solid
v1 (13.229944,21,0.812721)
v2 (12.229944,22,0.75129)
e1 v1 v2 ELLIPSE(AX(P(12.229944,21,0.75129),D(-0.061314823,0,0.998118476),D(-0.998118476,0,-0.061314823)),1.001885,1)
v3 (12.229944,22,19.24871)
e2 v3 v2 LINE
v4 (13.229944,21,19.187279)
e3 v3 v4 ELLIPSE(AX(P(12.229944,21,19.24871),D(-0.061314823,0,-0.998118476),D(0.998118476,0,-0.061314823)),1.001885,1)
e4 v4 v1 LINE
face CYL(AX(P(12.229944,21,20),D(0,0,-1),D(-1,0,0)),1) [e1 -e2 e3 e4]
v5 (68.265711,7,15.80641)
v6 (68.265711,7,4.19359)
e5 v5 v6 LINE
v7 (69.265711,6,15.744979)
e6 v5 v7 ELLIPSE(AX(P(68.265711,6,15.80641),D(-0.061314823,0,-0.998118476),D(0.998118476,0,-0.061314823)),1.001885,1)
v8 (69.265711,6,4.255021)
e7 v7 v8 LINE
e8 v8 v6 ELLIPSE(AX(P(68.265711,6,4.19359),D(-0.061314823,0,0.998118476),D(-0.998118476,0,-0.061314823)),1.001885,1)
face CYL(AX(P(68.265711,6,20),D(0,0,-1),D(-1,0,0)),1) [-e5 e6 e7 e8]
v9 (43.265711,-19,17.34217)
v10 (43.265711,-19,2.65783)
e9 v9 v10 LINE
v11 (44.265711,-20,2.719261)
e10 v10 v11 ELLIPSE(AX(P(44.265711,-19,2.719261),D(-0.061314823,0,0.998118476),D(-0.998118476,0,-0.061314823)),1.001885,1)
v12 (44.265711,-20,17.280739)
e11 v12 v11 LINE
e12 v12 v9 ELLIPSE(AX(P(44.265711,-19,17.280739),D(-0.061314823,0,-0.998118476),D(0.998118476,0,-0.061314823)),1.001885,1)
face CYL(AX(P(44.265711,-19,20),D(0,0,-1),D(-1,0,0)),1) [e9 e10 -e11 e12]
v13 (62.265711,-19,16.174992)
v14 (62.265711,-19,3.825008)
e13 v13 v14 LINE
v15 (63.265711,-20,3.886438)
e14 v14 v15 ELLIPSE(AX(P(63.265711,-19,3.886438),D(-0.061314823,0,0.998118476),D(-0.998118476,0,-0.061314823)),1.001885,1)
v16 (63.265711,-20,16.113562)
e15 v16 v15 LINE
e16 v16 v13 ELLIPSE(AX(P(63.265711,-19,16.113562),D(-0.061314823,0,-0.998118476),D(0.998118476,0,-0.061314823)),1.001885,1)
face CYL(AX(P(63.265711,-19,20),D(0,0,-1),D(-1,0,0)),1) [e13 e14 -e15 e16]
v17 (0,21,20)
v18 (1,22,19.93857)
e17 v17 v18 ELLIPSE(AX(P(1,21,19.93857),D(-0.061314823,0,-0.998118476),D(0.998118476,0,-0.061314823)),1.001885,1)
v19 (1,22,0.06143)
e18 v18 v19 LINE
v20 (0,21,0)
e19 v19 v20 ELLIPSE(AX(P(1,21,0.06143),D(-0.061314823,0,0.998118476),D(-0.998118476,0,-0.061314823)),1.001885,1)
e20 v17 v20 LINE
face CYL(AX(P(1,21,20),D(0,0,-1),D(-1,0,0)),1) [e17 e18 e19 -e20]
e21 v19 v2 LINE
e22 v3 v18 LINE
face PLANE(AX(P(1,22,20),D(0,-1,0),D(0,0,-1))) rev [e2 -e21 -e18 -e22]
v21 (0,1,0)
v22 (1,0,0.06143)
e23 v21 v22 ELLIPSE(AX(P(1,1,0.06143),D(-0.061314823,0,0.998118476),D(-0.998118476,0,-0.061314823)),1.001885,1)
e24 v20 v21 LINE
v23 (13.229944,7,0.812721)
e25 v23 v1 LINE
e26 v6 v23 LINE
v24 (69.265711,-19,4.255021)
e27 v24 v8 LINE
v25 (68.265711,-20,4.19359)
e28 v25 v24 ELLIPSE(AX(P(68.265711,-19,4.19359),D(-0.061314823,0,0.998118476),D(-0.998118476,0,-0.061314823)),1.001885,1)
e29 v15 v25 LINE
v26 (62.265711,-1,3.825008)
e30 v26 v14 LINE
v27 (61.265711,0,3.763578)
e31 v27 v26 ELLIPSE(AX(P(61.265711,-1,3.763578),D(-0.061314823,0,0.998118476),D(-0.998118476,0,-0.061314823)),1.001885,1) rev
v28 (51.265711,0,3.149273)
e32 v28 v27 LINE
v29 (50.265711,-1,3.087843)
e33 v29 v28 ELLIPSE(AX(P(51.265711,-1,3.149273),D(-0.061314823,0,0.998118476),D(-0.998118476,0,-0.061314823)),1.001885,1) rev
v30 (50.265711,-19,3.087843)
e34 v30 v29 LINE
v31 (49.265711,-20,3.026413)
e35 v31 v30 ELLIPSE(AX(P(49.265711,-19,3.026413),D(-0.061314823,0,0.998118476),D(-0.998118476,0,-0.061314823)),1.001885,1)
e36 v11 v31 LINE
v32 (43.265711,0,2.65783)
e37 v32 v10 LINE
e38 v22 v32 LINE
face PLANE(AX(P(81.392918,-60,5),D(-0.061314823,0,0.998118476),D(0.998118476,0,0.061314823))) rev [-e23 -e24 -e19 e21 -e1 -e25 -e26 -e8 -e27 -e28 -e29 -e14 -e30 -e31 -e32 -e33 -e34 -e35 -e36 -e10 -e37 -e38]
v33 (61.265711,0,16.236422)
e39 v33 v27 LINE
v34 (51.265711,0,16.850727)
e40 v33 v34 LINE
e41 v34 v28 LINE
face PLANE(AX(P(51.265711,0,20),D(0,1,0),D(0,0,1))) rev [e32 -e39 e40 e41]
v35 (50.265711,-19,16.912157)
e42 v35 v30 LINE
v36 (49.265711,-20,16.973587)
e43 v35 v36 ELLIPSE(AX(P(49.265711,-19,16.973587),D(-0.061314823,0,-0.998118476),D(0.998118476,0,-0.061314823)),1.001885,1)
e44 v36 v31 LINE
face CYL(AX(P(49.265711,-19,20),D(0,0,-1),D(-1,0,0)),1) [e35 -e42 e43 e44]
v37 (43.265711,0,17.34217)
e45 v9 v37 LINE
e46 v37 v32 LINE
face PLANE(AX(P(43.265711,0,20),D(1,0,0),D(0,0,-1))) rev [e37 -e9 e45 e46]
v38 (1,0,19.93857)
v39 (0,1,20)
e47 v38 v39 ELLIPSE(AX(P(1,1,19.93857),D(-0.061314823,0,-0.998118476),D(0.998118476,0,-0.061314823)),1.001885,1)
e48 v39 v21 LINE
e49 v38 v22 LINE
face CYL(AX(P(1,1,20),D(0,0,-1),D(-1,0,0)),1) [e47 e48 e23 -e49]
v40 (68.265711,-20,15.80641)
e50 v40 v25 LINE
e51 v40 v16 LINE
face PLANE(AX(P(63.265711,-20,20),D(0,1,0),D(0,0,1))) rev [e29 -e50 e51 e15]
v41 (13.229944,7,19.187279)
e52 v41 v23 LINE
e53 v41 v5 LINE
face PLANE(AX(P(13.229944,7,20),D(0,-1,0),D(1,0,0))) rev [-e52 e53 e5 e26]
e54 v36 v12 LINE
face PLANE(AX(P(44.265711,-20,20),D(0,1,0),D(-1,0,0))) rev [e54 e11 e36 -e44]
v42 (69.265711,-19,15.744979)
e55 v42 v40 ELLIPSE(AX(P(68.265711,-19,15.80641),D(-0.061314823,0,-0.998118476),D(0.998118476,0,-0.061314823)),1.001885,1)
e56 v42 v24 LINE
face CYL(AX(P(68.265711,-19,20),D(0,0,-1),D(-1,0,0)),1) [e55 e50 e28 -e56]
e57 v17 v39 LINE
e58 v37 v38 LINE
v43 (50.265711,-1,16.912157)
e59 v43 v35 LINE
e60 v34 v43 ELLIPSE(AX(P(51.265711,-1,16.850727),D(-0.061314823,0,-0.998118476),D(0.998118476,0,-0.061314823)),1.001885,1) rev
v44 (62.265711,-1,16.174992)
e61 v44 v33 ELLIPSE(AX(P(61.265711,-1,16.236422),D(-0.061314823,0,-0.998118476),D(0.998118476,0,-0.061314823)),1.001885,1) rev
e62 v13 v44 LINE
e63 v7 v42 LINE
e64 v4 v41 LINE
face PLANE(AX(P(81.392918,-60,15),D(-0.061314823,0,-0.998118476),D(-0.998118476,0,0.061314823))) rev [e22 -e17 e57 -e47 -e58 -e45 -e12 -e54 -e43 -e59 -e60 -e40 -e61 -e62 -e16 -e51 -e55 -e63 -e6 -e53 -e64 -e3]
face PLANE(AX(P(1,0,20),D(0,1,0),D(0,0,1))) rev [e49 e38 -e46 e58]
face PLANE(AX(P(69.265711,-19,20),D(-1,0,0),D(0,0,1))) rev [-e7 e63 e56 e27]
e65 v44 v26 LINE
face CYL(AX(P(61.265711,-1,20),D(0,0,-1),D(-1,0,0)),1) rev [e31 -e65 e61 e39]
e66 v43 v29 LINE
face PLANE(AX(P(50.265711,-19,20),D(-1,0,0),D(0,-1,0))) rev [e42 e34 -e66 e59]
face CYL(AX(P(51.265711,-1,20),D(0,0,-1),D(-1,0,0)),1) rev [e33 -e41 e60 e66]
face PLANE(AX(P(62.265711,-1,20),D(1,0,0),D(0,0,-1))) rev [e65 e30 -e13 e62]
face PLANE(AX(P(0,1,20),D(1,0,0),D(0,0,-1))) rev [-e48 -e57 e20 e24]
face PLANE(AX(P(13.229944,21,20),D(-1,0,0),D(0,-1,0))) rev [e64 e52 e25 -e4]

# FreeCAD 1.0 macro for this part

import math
import FreeCAD as App
import Part
import Sketcher
Q = App.Units.Quantity

doc = App.newDocument("Part")
body = doc.addObject("PartDesign::Body", "Body")

# Sketch on XY plane
sketch1 = doc.addObject("Sketcher::SketchObject", "Sketch")
body.addObject(sketch1)
sketch1.AttachmentSupport = (doc.XY_Plane, [""])
sketch1.MapMode = "FlatFace"
sketch1.addGeometry([
    Part.LineSegment(App.Vector(0, 21, 0), App.Vector(0, 1, 0)),  # 0
    Part.ArcOfCircle(Part.Circle(App.Vector(1, 1, 0), App.Vector(0, 0, 1), 1), math.radians(-180), math.radians(-90)),  # 1
    Part.LineSegment(App.Vector(1, 0, 0), App.Vector(43.3, 0, 0)),  # 2
    Part.LineSegment(App.Vector(43.3, 0, 0), App.Vector(43.3, -19, 0)),  # 3
    Part.ArcOfCircle(Part.Circle(App.Vector(44.3, -19, 0), App.Vector(0, 0, 1), 1), math.radians(-180), math.radians(-90)),  # 4
    Part.LineSegment(App.Vector(44.3, -20, 0), App.Vector(49.3, -20, 0)),  # 5
    Part.ArcOfCircle(Part.Circle(App.Vector(49.3, -19, 0), App.Vector(0, 0, 1), 1), math.radians(-90), math.radians(0)),  # 6
    Part.LineSegment(App.Vector(50.3, -19, 0), App.Vector(50.3, -1, 0)),  # 7
    Part.ArcOfCircle(Part.Circle(App.Vector(51.3, -1, 0), App.Vector(0, 0, 1), 1), math.radians(90), math.radians(180)),  # 8
    Part.LineSegment(App.Vector(51.3, 0, 0), App.Vector(61.3, 0, 0)),  # 9
    Part.ArcOfCircle(Part.Circle(App.Vector(61.3, -1, 0), App.Vector(0, 0, 1), 1), math.radians(0), math.radians(90)),  # 10
    Part.LineSegment(App.Vector(62.3, -1, 0), App.Vector(62.3, -19, 0)),  # 11
    Part.ArcOfCircle(Part.Circle(App.Vector(63.3, -19, 0), App.Vector(0, 0, 1), 1), math.radians(-180), math.radians(-90)),  # 12
    Part.LineSegment(App.Vector(63.3, -20, 0), App.Vector(68.3, -20, 0)),  # 13
    Part.ArcOfCircle(Part.Circle(App.Vector(68.3, -19, 0), App.Vector(0, 0, 1), 1), math.radians(-90), math.radians(0)),  # 14
    Part.LineSegment(App.Vector(69.3, -19, 0), App.Vector(69.3, 6, 0)),  # 15
    Part.ArcOfCircle(Part.Circle(App.Vector(68.3, 6, 0), App.Vector(0, 0, 1), 1), math.radians(0), math.radians(90)),  # 16
    Part.LineSegment(App.Vector(68.3, 7, 0), App.Vector(13.2, 7, 0)),  # 17
    Part.LineSegment(App.Vector(13.2, 7, 0), App.Vector(13.2, 21, 0)),  # 18
    Part.ArcOfCircle(Part.Circle(App.Vector(12.2, 21, 0), App.Vector(0, 0, 1), 1), math.radians(0), math.radians(90)),  # 19
    Part.LineSegment(App.Vector(12.2, 22, 0), App.Vector(1, 22, 0)),  # 20
    Part.ArcOfCircle(Part.Circle(App.Vector(1, 21, 0), App.Vector(0, 0, 1), 1), math.radians(90), math.radians(180)),  # 21
], False)
sketch1.addConstraint([
    Sketcher.Constraint("Tangent", 0, 2, 1, 1),
    Sketcher.Constraint("Tangent", 1, 2, 2, 1),
    Sketcher.Constraint("Coincident", 2, 2, 3, 1),
    Sketcher.Constraint("Tangent", 3, 2, 4, 1),
    Sketcher.Constraint("Tangent", 4, 2, 5, 1),
    Sketcher.Constraint("Tangent", 5, 2, 6, 1),
    Sketcher.Constraint("Tangent", 6, 2, 7, 1),
    Sketcher.Constraint("Tangent", 7, 2, 8, 2),
    Sketcher.Constraint("Tangent", 8, 1, 9, 1),
    Sketcher.Constraint("Tangent", 9, 2, 10, 2),
    Sketcher.Constraint("Tangent", 10, 1, 11, 1),
    Sketcher.Constraint("Tangent", 11, 2, 12, 1),
    Sketcher.Constraint("Tangent", 12, 2, 13, 1),
    Sketcher.Constraint("Tangent", 13, 2, 14, 1),
    Sketcher.Constraint("Tangent", 14, 2, 15, 1),
    Sketcher.Constraint("Tangent", 15, 2, 16, 1),
    Sketcher.Constraint("Tangent", 16, 2, 17, 1),
    Sketcher.Constraint("Coincident", 17, 2, 18, 1),
    Sketcher.Constraint("Tangent", 18, 2, 19, 1),
    Sketcher.Constraint("Tangent", 19, 2, 20, 1),
    Sketcher.Constraint("Tangent", 20, 2, 21, 1),
    Sketcher.Constraint("Tangent", 21, 2, 0, 1),
    Sketcher.Constraint("Vertical", 0),
    Sketcher.Constraint("Horizontal", 2),
    Sketcher.Constraint("Vertical", 3),
    Sketcher.Constraint("Horizontal", 5),
    Sketcher.Constraint("Vertical", 7),
    Sketcher.Constraint("Horizontal", 9),
    Sketcher.Constraint("Vertical", 11),
    Sketcher.Constraint("Horizontal", 13),
    Sketcher.Constraint("Vertical", 15),
    Sketcher.Constraint("Horizontal", 17),
    Sketcher.Constraint("Vertical", 18),
    Sketcher.Constraint("Horizontal", 20),
    Sketcher.Constraint("Equal", 1, 4),
    Sketcher.Constraint("Equal", 4, 6),
    Sketcher.Constraint("Equal", 6, 8),
    Sketcher.Constraint("Equal", 8, 10),
    Sketcher.Constraint("Equal", 10, 12),
    Sketcher.Constraint("Equal", 12, 14),
    Sketcher.Constraint("Equal", 14, 16),
    Sketcher.Constraint("Equal", 16, 19),
    Sketcher.Constraint("Equal", 19, 21),
    Sketcher.Constraint("PointOnObject", 0, 2, -2),
    Sketcher.Constraint("PointOnObject", 1, 2, -1),
    Sketcher.Constraint("PointOnObject", 8, 1, -1),
    Sketcher.Constraint("Horizontal", 6, 3, 12, 3),
    Sketcher.Constraint("Equal", 5, 13),
    Sketcher.Constraint("Radius", 1, Q("1 mm")),
    Sketcher.Constraint("DistanceX", 5, 1, 5, 2, Q("5 mm")),
    Sketcher.Constraint("DistanceX", 9, 1, 9, 2, Q("10 mm")),
    Sketcher.Constraint("DistanceY", 0, 2, 0, 1, Q("20 mm")),
    Sketcher.Constraint("DistanceY", 3, 2, 3, 1, Q("19 mm")),
    Sketcher.Constraint("DistanceY", 15, 1, 15, 2, Q("25 mm")),
    Sketcher.Constraint("DistanceX", 2, 1, 2, 2, Q("42.265711 mm")),
    Sketcher.Constraint("DistanceX", 17, 2, 17, 1, Q("55.035767 mm")),
])
pad1 = doc.addObject("PartDesign::Pad", "Pad")
body.addObject(pad1)
pad1.Profile = sketch1
pad1.Length = 20

# Sketch on XZ plane
sketch2 = doc.addObject("Sketcher::SketchObject", "Sketch001")
body.addObject(sketch2)
sketch2.AttachmentSupport = (doc.XZ_Plane, [""])
sketch2.MapMode = "FlatFace"
sketch2.AttachmentOffset = App.Placement(App.Vector(0, 0, -22), App.Rotation())
sketch2.addGeometry([
    Part.LineSegment(App.Vector(0, 0, 0), App.Vector(81, 5, 0)),  # 0
    Part.LineSegment(App.Vector(81, 5, 0), App.Vector(88, -14, 0)),  # 1
    Part.LineSegment(App.Vector(88, -14, 0), App.Vector(0, 0, 0)),  # 2
    Part.LineSegment(App.Vector(81, 15, 0), App.Vector(0, 20, 0)),  # 3
    Part.LineSegment(App.Vector(0, 20, 0), App.Vector(97, 40, 0)),  # 4
    Part.LineSegment(App.Vector(97, 40, 0), App.Vector(81, 15, 0)),  # 5
], False)
sketch2.addConstraint([
    Sketcher.Constraint("Coincident", 0, 2, 1, 1),
    Sketcher.Constraint("Coincident", 1, 2, 2, 1),
    Sketcher.Constraint("Coincident", 2, 2, 0, 1),
    Sketcher.Constraint("Coincident", 3, 2, 4, 1),
    Sketcher.Constraint("Coincident", 4, 2, 5, 1),
    Sketcher.Constraint("Coincident", 5, 2, 3, 1),
    Sketcher.Constraint("Coincident", 2, 2, -1, 1),
    Sketcher.Constraint("PointOnObject", 3, 2, -2),
    Sketcher.Constraint("Vertical", 0, 2, 5, 2),
    Sketcher.Constraint("Equal", 0, 3),
    Sketcher.Constraint("DistanceY", -1, 1, 0, 2, Q("5 mm")),
    Sketcher.Constraint("DistanceY", -1, 1, 3, 2, Q("20 mm")),
    Sketcher.Constraint("Distance", 0, Q("81.546349 mm")),
    Sketcher.Constraint("Distance", 1, Q("20.15099 mm")),
    Sketcher.Constraint("Distance", 5, Q("29.469811 mm")),
    Sketcher.Constraint("DistanceX", -1, 1, 1, 2, Q("88.471949 mm")),
    Sketcher.Constraint("Distance", 4, Q("99.460457 mm")),
])
pocket1 = doc.addObject("PartDesign::Pocket", "Pocket")
body.addObject(pocket1)
pocket1.Profile = sketch2
pocket1.Length = 82
pocket1.Reversed = True

doc.recompute()
